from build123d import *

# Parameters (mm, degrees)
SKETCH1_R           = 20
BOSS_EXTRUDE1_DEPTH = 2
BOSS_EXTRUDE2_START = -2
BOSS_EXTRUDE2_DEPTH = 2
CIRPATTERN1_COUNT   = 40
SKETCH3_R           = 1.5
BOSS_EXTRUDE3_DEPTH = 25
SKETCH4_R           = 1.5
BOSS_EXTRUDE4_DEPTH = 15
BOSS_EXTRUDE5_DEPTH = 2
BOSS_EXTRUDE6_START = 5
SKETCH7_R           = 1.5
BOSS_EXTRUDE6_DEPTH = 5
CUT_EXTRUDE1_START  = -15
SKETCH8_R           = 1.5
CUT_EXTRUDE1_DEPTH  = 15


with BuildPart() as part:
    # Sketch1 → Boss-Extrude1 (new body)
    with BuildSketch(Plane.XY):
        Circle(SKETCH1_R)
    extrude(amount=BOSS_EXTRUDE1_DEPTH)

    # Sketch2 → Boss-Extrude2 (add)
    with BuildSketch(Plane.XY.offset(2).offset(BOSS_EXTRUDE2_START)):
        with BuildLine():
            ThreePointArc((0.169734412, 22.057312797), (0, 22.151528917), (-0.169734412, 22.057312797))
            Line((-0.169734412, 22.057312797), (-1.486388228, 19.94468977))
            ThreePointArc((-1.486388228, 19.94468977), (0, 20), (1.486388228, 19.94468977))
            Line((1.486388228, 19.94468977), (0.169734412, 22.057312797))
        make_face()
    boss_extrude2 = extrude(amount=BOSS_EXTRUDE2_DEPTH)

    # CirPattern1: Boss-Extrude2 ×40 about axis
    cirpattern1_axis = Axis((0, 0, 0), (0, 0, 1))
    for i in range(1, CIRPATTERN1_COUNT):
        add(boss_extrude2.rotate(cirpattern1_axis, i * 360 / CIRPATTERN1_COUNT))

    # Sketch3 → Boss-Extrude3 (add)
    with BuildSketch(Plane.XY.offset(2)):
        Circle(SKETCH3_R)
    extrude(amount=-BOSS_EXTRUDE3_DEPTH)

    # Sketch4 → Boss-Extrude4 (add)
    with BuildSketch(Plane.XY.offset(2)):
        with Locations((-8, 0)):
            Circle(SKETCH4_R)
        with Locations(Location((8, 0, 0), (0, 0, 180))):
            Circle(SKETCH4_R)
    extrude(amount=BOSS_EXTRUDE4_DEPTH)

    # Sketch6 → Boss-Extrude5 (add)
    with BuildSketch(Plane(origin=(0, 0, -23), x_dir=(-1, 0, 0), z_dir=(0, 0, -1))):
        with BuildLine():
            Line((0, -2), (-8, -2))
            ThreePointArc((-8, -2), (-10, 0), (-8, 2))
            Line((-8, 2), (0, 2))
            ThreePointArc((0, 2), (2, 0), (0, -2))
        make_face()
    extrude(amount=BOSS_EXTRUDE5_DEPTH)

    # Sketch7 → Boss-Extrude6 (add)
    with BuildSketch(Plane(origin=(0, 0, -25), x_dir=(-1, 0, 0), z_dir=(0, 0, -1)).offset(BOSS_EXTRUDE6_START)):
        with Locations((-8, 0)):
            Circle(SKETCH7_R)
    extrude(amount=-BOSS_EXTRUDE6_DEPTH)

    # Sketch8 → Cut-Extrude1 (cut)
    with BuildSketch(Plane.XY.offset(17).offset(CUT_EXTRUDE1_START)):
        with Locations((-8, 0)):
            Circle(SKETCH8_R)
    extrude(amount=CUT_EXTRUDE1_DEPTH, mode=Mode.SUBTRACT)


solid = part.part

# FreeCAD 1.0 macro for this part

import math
import FreeCAD as App
import Part
import Sketcher

V = App.Vector
Q = App.Units.Quantity

doc = App.newDocument("Part")
params = doc.addObject("Spreadsheet::Sheet", "Params")
for row, (alias, value) in enumerate([
    ("sketch1_diameter", "40 mm"),
    ("pad1_length", "2 mm"),
    ("sketch2_radius", "20 mm"),
    ("sketch2_radius2", "0.2 mm"),
    ("pad2_length", "2 mm"),
    ("sketch3_diameter", "3 mm"),
    ("pad3_length", "25 mm"),
    ("sketch4_diameter", "3 mm"),
    ("pad4_length", "15 mm"),
    ("sketch5_radius", "2 mm"),
    ("sketch5_width", "8 mm"),
    ("pad5_length", "2 mm"),
    ("sketch6_diameter", "3 mm"),
    ("pad6_length", "5 mm"),
    ("sketch7_diameter", "3 mm"),
    ("pocket1_length", "15 mm"),
], start=1):
    params.set(f"A{row}", alias)
    params.set(f"B{row}", "=" + value)
    params.setAlias(f"B{row}", alias)

body = doc.addObject("PartDesign::Body", "Body")

# Sketch on XY plane
sketch1 = body.newObject("Sketcher::SketchObject", "Sketch")
sketch1.AttachmentSupport = (doc.getObject("XY_Plane"), [""])
sketch1.MapMode = "FlatFace"
sketch1.addGeometry(Part.Circle(V(0, 0, 0), V(0, 0, 1), 20), False)
sketch1.addConstraint(Sketcher.Constraint("Coincident", 0, 3, -1, 1))
sketch1.addConstraint(Sketcher.Constraint("Diameter", 0, Q("40 mm")))
sketch1.setExpression("Constraints[1]", "Params.sketch1_diameter")
pad1 = body.newObject("PartDesign::Pad", "Pad")
pad1.Profile = sketch1
pad1.setExpression("Length", "Params.pad1_length")

# Sketch on XY plane
sketch2 = body.newObject("Sketcher::SketchObject", "Sketch001")
sketch2.AttachmentSupport = (doc.getObject("XY_Plane"), [""])
sketch2.MapMode = "FlatFace"
sketch2.addGeometry(Part.ArcOfCircle(Part.Circle(V(0, 21.951529, 0), V(0, 0, 1), 0.2), math.radians(31.932472), math.radians(148.067528)), False)
sketch2.addGeometry(Part.LineSegment(V(-0.169734, 22.057313, 0), V(-1.486388, 19.94469, 0)), False)
sketch2.addGeometry(Part.ArcOfCircle(Part.Circle(V(0, 0, 0), V(0, 0, 1), 20), math.radians(85.737882), math.radians(94.262118)), False)
sketch2.addGeometry(Part.LineSegment(V(1.486388, 19.94469, 0), V(0.169734, 22.057313, 0)), False)
sketch2.addConstraint(Sketcher.Constraint("Tangent", 0, 2, 1, 1))
sketch2.addConstraint(Sketcher.Constraint("Coincident", 1, 2, 2, 2))
sketch2.addConstraint(Sketcher.Constraint("Coincident", 2, 1, 3, 1))
sketch2.addConstraint(Sketcher.Constraint("Tangent", 3, 2, 0, 1))
sketch2.addConstraint(Sketcher.Constraint("Coincident", 2, 3, -1, 1))
sketch2.addConstraint(Sketcher.Constraint("Symmetric", 0, 2, 3, 2, -2))
sketch2.addConstraint(Sketcher.Constraint("Radius", 2, Q("20 mm")))
sketch2.addConstraint(Sketcher.Constraint("Radius", 0, Q("0.2 mm")))
sketch2.addConstraint(Sketcher.Constraint("DistanceY", -1, 1, 0, 3, Q("21.951529 mm")))
sketch2.addConstraint(Sketcher.Constraint("DistanceX", 1, 2, -1, 1, Q("1.486388 mm")))
sketch2.setExpression("Constraints[6]", "Params.sketch2_radius")
sketch2.setExpression("Constraints[7]", "Params.sketch2_radius2")
pad2 = body.newObject("PartDesign::Pad", "Pad001")
pad2.Profile = sketch2
pad2.setExpression("Length", "Params.pad2_length")
doc.recompute()

polarpattern = body.newObject("PartDesign::PolarPattern", "PolarPattern")
polarpattern.Originals = [pad2]
polarpattern.Axis = (doc.getObject("Z_Axis"), [""])
polarpattern.Angle = 360
polarpattern.Occurrences = 40
body.Tip = polarpattern

# Sketch on XY plane
sketch3 = body.newObject("Sketcher::SketchObject", "Sketch002")
sketch3.AttachmentSupport = (doc.getObject("XY_Plane"), [""])
sketch3.MapMode = "FlatFace"
sketch3.AttachmentOffset = App.Placement(V(0, 0, 2), App.Rotation())
sketch3.addGeometry(Part.Circle(V(0, 0, 0), V(0, 0, 1), 1.5), False)
sketch3.addConstraint(Sketcher.Constraint("Coincident", 0, 3, -1, 1))
sketch3.addConstraint(Sketcher.Constraint("Diameter", 0, Q("3 mm")))
sketch3.setExpression("Constraints[1]", "Params.sketch3_diameter")
pad3 = body.newObject("PartDesign::Pad", "Pad002")
pad3.Profile = sketch3
pad3.setExpression("Length", "Params.pad3_length")
pad3.Reversed = True

# Sketch on XY plane
sketch4 = body.newObject("Sketcher::SketchObject", "Sketch003")
sketch4.AttachmentSupport = (doc.getObject("XY_Plane"), [""])
sketch4.MapMode = "FlatFace"
sketch4.AttachmentOffset = App.Placement(V(0, 0, 2), App.Rotation())
sketch4.addGeometry(Part.Circle(V(-8, 0, 0), V(0, 0, 1), 1.5), False)
sketch4.addGeometry(Part.Circle(V(8, 0, 0), V(0, 0, 1), 1.5), False)
sketch4.addConstraint(Sketcher.Constraint("Equal", 0, 1))
sketch4.addConstraint(Sketcher.Constraint("Symmetric", 0, 3, 1, 3, -1, 1))
sketch4.addConstraint(Sketcher.Constraint("PointOnObject", 0, 3, -1))
sketch4.addConstraint(Sketcher.Constraint("Diameter", 0, Q("3 mm")))
sketch4.addConstraint(Sketcher.Constraint("DistanceX", 0, 3, -1, 1, Q("8 mm")))
sketch4.setExpression("Constraints[3]", "Params.sketch4_diameter")
pad4 = body.newObject("PartDesign::Pad", "Pad003")
pad4.Profile = sketch4
pad4.setExpression("Length", "Params.pad4_length")

# Sketch on XY plane
sketch5 = body.newObject("Sketcher::SketchObject", "Sketch004")
sketch5.AttachmentSupport = (doc.getObject("XY_Plane"), [""])
sketch5.MapMode = "FlatFace"
sketch5.AttachmentOffset = App.Placement(V(0, 0, -23), App.Rotation())
sketch5.addGeometry(Part.LineSegment(V(8, -2, 0), V(0, -2, 0)), False)
sketch5.addGeometry(Part.ArcOfCircle(Part.Circle(V(0, 0, 0), V(0, 0, 1), 2), math.radians(90), math.radians(270)), False)
sketch5.addGeometry(Part.LineSegment(V(0, 2, 0), V(8, 2, 0)), False)
sketch5.addGeometry(Part.ArcOfCircle(Part.Circle(V(8, 0, 0), V(0, 0, 1), 2), math.radians(-90), math.radians(90)), False)
sketch5.addConstraint(Sketcher.Constraint("Tangent", 0, 2, 1, 2))
sketch5.addConstraint(Sketcher.Constraint("Tangent", 1, 1, 2, 1))
sketch5.addConstraint(Sketcher.Constraint("Tangent", 2, 2, 3, 2))
sketch5.addConstraint(Sketcher.Constraint("Tangent", 3, 1, 0, 1))
sketch5.addConstraint(Sketcher.Constraint("Horizontal", 0))
sketch5.addConstraint(Sketcher.Constraint("Horizontal", 2))
sketch5.addConstraint(Sketcher.Constraint("Coincident", 1, 3, -1, 1))
sketch5.addConstraint(Sketcher.Constraint("Radius", 1, Q("2 mm")))
sketch5.addConstraint(Sketcher.Constraint("DistanceX", 0, 2, 0, 1, Q("8 mm")))
sketch5.setExpression("Constraints[7]", "Params.sketch5_radius")
sketch5.setExpression("Constraints[8]", "Params.sketch5_width")
pad5 = body.newObject("PartDesign::Pad", "Pad004")
pad5.Profile = sketch5
pad5.setExpression("Length", "Params.pad5_length")
pad5.Reversed = True

# Sketch on XY plane
sketch6 = body.newObject("Sketcher::SketchObject", "Sketch005")
sketch6.AttachmentSupport = (doc.getObject("XY_Plane"), [""])
sketch6.MapMode = "FlatFace"
sketch6.AttachmentOffset = App.Placement(V(0, 0, -30), App.Rotation())
sketch6.addGeometry(Part.Circle(V(8, 0, 0), V(0, 0, 1), 1.5), False)
sketch6.addConstraint(Sketcher.Constraint("PointOnObject", 0, 3, -1))
sketch6.addConstraint(Sketcher.Constraint("Diameter", 0, Q("3 mm")))
sketch6.addConstraint(Sketcher.Constraint("DistanceX", -1, 1, 0, 3, Q("8 mm")))
sketch6.setExpression("Constraints[1]", "Params.sketch6_diameter")
pad6 = body.newObject("PartDesign::Pad", "Pad005")
pad6.Profile = sketch6
pad6.setExpression("Length", "Params.pad6_length")

# Sketch on XY plane
sketch7 = body.newObject("Sketcher::SketchObject", "Sketch006")
sketch7.AttachmentSupport = (doc.getObject("XY_Plane"), [""])
sketch7.MapMode = "FlatFace"
sketch7.AttachmentOffset = App.Placement(V(0, 0, 2), App.Rotation())
sketch7.addGeometry(Part.Circle(V(-8, 0, 0), V(0, 0, 1), 1.5), False)
sketch7.addConstraint(Sketcher.Constraint("PointOnObject", 0, 3, -1))
sketch7.addConstraint(Sketcher.Constraint("Diameter", 0, Q("3 mm")))
sketch7.addConstraint(Sketcher.Constraint("DistanceX", 0, 3, -1, 1, Q("8 mm")))
sketch7.setExpression("Constraints[1]", "Params.sketch7_diameter")
pocket1 = body.newObject("PartDesign::Pocket", "Pocket")
pocket1.Profile = sketch7
pocket1.setExpression("Length", "Params.pocket1_length")
pocket1.Reversed = True

doc.recompute()
